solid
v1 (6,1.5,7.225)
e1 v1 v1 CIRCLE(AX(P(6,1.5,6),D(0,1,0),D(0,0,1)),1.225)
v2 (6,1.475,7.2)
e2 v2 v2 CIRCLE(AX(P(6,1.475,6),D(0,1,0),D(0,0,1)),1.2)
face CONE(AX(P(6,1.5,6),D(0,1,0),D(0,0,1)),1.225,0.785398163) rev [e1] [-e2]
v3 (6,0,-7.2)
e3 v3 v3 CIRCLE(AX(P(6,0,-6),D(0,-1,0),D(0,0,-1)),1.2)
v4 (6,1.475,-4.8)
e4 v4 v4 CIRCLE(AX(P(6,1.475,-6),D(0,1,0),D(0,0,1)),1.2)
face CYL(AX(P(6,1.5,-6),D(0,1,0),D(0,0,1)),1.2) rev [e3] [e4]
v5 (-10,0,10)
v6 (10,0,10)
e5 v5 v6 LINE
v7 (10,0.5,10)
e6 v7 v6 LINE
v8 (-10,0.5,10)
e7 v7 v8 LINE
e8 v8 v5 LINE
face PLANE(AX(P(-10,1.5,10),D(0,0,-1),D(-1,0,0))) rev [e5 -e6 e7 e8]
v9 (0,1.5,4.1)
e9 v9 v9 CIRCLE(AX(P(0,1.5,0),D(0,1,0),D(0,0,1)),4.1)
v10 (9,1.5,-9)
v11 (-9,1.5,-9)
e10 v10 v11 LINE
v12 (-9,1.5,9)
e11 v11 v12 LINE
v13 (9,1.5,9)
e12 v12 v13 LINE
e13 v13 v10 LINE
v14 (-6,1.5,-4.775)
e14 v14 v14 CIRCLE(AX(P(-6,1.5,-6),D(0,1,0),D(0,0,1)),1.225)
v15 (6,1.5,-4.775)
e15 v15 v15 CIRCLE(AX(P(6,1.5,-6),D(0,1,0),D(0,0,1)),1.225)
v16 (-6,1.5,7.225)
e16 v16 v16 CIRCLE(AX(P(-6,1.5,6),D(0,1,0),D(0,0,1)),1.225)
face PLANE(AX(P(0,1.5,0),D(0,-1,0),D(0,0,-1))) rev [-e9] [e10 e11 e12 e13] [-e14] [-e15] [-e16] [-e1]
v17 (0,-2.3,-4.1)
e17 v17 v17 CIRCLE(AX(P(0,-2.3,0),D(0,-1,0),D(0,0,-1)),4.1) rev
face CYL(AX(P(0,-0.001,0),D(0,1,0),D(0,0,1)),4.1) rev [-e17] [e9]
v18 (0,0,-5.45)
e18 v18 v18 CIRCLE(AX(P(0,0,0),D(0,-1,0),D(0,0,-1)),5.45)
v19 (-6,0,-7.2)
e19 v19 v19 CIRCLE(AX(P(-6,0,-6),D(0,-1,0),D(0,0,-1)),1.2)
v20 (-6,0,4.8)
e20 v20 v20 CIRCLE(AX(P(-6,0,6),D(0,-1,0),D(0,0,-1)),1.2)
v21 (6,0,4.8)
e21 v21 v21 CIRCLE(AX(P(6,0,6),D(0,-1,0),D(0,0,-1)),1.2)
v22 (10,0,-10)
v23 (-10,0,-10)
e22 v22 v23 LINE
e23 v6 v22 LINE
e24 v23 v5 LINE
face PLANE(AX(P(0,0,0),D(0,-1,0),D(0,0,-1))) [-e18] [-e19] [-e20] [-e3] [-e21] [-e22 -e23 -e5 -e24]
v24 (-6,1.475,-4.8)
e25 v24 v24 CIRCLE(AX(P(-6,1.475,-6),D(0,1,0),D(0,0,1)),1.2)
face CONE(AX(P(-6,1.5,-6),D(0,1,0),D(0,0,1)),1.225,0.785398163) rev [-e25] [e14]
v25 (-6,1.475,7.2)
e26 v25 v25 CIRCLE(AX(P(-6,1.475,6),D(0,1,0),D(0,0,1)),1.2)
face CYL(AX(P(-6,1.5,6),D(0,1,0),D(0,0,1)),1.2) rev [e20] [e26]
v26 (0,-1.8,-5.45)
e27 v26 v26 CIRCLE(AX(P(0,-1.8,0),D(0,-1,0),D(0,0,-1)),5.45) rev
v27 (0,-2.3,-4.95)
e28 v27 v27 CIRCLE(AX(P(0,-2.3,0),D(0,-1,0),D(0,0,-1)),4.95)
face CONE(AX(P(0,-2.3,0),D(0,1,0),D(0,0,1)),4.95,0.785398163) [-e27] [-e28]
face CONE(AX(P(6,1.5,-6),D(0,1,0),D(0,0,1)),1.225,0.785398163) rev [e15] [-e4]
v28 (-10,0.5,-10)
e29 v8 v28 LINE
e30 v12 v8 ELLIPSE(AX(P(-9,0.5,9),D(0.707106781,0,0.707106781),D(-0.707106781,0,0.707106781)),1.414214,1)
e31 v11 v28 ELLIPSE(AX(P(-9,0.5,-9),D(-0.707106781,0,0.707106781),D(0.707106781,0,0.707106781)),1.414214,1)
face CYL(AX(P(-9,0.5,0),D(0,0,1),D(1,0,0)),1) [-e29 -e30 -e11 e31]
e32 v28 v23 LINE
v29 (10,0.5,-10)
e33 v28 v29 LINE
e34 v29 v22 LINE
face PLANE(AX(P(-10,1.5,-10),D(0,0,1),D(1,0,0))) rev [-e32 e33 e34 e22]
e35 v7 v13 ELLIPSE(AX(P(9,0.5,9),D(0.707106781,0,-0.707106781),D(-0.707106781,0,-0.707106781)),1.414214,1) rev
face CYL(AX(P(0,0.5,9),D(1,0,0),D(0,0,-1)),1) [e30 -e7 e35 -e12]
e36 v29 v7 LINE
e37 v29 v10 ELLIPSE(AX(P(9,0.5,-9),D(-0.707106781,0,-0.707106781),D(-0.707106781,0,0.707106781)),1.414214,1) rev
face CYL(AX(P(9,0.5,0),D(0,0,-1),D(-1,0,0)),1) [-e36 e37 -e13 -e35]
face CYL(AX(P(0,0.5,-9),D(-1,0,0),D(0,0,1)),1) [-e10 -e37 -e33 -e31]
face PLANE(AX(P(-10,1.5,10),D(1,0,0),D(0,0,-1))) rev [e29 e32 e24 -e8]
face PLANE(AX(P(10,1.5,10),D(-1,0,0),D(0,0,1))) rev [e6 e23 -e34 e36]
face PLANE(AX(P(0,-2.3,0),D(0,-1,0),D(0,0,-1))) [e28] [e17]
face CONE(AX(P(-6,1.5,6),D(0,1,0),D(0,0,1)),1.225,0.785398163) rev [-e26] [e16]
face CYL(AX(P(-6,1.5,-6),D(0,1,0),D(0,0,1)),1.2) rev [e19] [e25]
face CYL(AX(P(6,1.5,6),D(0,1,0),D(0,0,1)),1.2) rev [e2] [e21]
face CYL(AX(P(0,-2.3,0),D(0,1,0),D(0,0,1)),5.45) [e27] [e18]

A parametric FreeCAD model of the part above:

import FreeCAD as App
import Part
import Sketcher
Q = App.Units.Quantity


def edges_at(feature, points):
    """Names of the edges that pass closest to the given points."""
    edges = feature.Shape.Edges
    near = lambda p: min(range(len(edges)), key=lambda i: edges[i].distToShape(Part.Vertex(*p))[0])
    return sorted({f"Edge{near(p) + 1}" for p in points})

doc = App.newDocument("Part")
body = doc.addObject("PartDesign::Body", "Body")

# Sketch on XZ plane
sketch1 = body.newObject("Sketcher::SketchObject", "Sketch")
sketch1.AttachmentSupport = (doc.getObject("XZ_Plane"), [""])
sketch1.MapMode = "FlatFace"
sketch1.addGeometry(Part.LineSegment(App.Vector(-10, -10, 0), App.Vector(-10, 10, 0)), False)
sketch1.addGeometry(Part.LineSegment(App.Vector(-10, 10, 0), App.Vector(10, 10, 0)), False)
sketch1.addGeometry(Part.LineSegment(App.Vector(10, 10, 0), App.Vector(10, -10, 0)), False)
sketch1.addGeometry(Part.LineSegment(App.Vector(10, -10, 0), App.Vector(-10, -10, 0)), False)
sketch1.addConstraint(Sketcher.Constraint("Coincident", 0, 2, 1, 1))
sketch1.addConstraint(Sketcher.Constraint("Coincident", 1, 2, 2, 1))
sketch1.addConstraint(Sketcher.Constraint("Coincident", 2, 2, 3, 1))
sketch1.addConstraint(Sketcher.Constraint("Coincident", 3, 2, 0, 1))
sketch1.addConstraint(Sketcher.Constraint("Vertical", 0))
sketch1.addConstraint(Sketcher.Constraint("Horizontal", 1))
sketch1.addConstraint(Sketcher.Constraint("Vertical", 2))
sketch1.addConstraint(Sketcher.Constraint("Horizontal", 3))
sketch1.addConstraint(Sketcher.Constraint("Symmetric", 0, 2, 2, 2, -1, 1))
sketch1.addConstraint(Sketcher.Constraint("Equal", 3, 0))
sketch1.addConstraint(Sketcher.Constraint("DistanceX", 1, 1, 1, 2, Q("20 mm")))
pad1 = body.newObject("PartDesign::Pad", "Pad")
pad1.Profile = sketch1
pad1.Length = 1.5
pad1.Reversed = True

# Sketch on XZ plane
sketch2 = body.newObject("Sketcher::SketchObject", "Sketch001")
sketch2.AttachmentSupport = (doc.getObject("XZ_Plane"), [""])
sketch2.MapMode = "FlatFace"
sketch2.AttachmentOffset = App.Placement(App.Vector(0, 0, -1.5), App.Rotation())
sketch2.addGeometry(Part.Circle(App.Vector(-6, -6, 0), App.Vector(0, 0, 1), 1.2), False)
sketch2.addGeometry(Part.Circle(App.Vector(6, -6, 0), App.Vector(0, 0, 1), 1.2), False)
sketch2.addGeometry(Part.Circle(App.Vector(-6, 6, 0), App.Vector(0, 0, 1), 1.2), False)
sketch2.addGeometry(Part.Circle(App.Vector(6, 6, 0), App.Vector(0, 0, 1), 1.2), False)
sketch2.addConstraint(Sketcher.Constraint("Equal", 0, 1))
sketch2.addConstraint(Sketcher.Constraint("Equal", 1, 2))
sketch2.addConstraint(Sketcher.Constraint("Equal", 2, 3))
sketch2.addConstraint(Sketcher.Constraint("Symmetric", 1, 3, 2, 3, -1, 1))
sketch2.addConstraint(Sketcher.Constraint("Symmetric", 0, 3, 3, 3, -1, 1))
sketch2.addConstraint(Sketcher.Constraint("Symmetric", 0, 3, 1, 3, -2))
sketch2.addConstraint(Sketcher.Constraint("Diameter", 0, Q("2.4 mm")))
sketch2.addConstraint(Sketcher.Constraint("DistanceX", 0, 3, -1, 1, Q("6 mm")))
sketch2.addConstraint(Sketcher.Constraint("DistanceY", 0, 3, -1, 1, Q("6 mm")))
doc.recompute()
hole = body.newObject("PartDesign::Hole", "Hole")
hole.Profile = sketch2
hole.ThreadType = "None"
hole.Diameter = 2.4
hole.DepthType = "ThroughAll"
hole.HoleCutType = "Countersink"
hole.HoleCutDiameter = 2.45
hole.HoleCutCountersinkAngle = 90
hole.Reversed = True
doc.recompute()

fillet = body.newObject("PartDesign::Fillet", "Fillet")
fillet.Base = (hole, edges_at(hole, [
    (-10, 1.5, 0),
    (0, 1.5, 10),
    (10, 1.5, 0),
    (0, 1.5, -10),
]))
fillet.Radius = 1

# Sketch on XZ plane
sketch3 = body.newObject("Sketcher::SketchObject", "Sketch002")
sketch3.AttachmentSupport = (doc.getObject("XZ_Plane"), [""])
sketch3.MapMode = "FlatFace"
sketch3.AttachmentOffset = App.Placement(App.Vector(0, 0, -1.5), App.Rotation())
sketch3.addGeometry(Part.Circle(App.Vector(0, 0, 0), App.Vector(0, 0, 1), 4.1), False)
sketch3.addConstraint(Sketcher.Constraint("Coincident", 0, 3, -1, 1))
sketch3.addConstraint(Sketcher.Constraint("Diameter", 0, Q("8.2 mm")))
pocket1 = body.newObject("PartDesign::Pocket", "Pocket")
pocket1.Profile = sketch3
pocket1.Type = "UpToFirst"
pocket1.Reversed = True

# Sketch on XZ plane
sketch4 = body.newObject("Sketcher::SketchObject", "Sketch003")
sketch4.AttachmentSupport = (doc.getObject("XZ_Plane"), [""])
sketch4.MapMode = "FlatFace"
sketch4.addGeometry(Part.Circle(App.Vector(0, 0, 0), App.Vector(0, 0, 1), 5.5), False)
sketch4.addGeometry(Part.Circle(App.Vector(0, 0, 0), App.Vector(0, 0, 1), 4.1), False)
sketch4.addConstraint(Sketcher.Constraint("Coincident", 0, 3, -1, 1))
sketch4.addConstraint(Sketcher.Constraint("Coincident", 1, 3, -1, 1))
sketch4.addConstraint(Sketcher.Constraint("Diameter", 0, Q("10.9 mm")))
sketch4.addConstraint(Sketcher.Constraint("Diameter", 1, Q("8.2 mm")))
pad2 = body.newObject("PartDesign::Pad", "Pad001")
pad2.Profile = sketch4
pad2.Length = 2.3
doc.recompute()

chamfer = body.newObject("PartDesign::Chamfer", "Chamfer")
chamfer.Base = (pad2, edges_at(pad2, [(0, -2.3, 5.45)]))
chamfer.Size = 0.5

doc.recompute()
